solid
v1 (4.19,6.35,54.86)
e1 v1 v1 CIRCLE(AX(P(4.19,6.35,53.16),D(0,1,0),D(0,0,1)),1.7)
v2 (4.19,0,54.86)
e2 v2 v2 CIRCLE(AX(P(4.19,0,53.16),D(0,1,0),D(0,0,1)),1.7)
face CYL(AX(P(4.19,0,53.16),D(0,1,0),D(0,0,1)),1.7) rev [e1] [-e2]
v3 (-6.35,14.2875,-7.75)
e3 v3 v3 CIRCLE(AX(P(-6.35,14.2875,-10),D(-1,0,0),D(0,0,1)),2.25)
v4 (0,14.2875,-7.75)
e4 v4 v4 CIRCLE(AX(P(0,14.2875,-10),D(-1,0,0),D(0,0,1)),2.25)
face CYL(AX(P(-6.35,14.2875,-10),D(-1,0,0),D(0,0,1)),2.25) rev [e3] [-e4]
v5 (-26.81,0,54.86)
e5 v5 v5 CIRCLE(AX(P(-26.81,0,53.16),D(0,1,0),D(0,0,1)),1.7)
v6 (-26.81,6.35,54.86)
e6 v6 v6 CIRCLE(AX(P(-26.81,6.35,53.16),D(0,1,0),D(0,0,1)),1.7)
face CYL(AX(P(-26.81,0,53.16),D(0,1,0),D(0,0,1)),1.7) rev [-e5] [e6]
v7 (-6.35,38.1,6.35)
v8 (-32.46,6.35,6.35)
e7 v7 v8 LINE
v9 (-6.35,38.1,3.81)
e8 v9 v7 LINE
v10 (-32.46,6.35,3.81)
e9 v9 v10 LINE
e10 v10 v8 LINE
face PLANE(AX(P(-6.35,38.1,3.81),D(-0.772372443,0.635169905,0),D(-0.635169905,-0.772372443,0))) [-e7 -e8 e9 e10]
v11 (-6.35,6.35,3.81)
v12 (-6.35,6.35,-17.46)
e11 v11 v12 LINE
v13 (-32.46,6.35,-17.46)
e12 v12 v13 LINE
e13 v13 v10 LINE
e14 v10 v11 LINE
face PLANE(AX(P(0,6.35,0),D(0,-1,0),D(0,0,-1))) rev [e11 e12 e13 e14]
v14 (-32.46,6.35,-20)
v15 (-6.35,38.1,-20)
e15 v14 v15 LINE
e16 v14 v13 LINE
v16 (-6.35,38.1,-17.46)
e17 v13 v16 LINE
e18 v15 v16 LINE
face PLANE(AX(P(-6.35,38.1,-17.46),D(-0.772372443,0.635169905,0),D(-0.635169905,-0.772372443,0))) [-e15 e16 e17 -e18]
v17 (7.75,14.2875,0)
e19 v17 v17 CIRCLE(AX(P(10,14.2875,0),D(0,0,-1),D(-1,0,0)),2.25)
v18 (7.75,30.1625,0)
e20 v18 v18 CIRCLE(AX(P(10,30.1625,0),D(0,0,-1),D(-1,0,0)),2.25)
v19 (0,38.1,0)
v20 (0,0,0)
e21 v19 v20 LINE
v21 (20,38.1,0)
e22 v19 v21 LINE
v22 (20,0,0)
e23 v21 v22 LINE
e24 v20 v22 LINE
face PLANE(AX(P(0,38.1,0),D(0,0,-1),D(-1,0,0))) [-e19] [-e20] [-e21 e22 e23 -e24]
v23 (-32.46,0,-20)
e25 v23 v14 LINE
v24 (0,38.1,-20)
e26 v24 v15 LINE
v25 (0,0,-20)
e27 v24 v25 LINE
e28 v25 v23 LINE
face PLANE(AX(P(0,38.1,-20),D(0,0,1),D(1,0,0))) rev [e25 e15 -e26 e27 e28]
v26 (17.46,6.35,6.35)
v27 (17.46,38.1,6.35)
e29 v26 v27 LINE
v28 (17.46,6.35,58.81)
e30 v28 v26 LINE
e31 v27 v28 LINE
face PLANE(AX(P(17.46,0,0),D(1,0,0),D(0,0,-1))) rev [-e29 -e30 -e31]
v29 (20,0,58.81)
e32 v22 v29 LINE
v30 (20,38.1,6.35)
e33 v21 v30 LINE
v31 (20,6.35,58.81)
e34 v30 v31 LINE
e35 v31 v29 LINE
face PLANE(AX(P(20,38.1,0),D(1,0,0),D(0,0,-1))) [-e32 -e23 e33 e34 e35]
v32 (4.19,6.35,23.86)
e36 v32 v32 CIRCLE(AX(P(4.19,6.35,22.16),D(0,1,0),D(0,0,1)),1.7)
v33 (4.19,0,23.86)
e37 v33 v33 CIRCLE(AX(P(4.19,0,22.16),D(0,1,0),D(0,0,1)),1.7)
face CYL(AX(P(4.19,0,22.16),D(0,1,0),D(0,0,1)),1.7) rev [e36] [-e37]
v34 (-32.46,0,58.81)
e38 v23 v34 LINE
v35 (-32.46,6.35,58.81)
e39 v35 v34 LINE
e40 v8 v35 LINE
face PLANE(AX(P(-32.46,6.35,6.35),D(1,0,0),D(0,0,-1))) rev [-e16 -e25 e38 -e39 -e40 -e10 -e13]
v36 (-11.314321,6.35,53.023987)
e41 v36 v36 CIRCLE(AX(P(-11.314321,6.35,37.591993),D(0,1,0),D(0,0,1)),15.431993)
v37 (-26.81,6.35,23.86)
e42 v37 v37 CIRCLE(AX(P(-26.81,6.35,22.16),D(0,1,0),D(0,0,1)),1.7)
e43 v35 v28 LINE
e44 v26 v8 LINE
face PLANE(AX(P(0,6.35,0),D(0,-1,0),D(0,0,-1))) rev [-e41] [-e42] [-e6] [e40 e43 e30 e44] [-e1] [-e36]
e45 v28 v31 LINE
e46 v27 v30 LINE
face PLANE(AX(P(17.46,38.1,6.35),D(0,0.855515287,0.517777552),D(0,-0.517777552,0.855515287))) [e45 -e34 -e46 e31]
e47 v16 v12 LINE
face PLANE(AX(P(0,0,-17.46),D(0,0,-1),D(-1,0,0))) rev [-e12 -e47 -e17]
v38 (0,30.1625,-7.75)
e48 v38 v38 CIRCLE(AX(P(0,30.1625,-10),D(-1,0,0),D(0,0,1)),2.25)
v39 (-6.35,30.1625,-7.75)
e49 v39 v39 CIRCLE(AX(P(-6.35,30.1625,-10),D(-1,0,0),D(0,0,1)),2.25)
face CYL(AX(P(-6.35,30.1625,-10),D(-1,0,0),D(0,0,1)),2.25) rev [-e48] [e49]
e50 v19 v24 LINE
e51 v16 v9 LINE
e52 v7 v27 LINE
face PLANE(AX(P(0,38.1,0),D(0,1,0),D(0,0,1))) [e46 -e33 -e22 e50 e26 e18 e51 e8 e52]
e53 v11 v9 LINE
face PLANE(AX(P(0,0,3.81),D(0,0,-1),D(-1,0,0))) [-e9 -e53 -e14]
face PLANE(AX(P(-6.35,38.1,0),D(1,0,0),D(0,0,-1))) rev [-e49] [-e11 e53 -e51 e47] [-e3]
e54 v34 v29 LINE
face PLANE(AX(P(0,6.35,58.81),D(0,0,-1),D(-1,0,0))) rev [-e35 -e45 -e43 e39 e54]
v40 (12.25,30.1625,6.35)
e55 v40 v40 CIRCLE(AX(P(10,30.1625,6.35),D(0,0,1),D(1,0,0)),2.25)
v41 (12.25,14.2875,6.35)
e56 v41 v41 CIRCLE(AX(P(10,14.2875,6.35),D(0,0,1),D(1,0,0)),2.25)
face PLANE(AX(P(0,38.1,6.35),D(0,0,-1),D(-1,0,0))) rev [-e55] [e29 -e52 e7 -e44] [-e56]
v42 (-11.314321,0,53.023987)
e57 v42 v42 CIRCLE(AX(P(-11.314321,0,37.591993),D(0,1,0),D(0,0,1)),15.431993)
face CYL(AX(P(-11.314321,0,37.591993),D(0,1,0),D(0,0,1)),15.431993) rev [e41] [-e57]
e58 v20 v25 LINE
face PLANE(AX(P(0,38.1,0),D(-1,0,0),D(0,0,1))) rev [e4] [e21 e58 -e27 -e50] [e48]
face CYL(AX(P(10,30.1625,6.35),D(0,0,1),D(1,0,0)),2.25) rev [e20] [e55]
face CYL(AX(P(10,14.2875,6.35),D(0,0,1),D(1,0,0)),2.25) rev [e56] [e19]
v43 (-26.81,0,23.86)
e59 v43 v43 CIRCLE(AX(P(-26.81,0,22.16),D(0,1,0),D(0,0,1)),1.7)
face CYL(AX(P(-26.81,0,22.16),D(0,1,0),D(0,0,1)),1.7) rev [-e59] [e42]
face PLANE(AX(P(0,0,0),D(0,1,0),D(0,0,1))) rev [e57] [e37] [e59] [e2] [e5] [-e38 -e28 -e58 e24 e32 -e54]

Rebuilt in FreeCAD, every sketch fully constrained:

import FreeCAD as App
import Part
import Sketcher

V = App.Vector
Q = App.Units.Quantity


def add_polygon(sketch, points):
    """Adds a closed chain of lines whose ends are joined by coincident constraints."""
    first, n = sketch.GeometryCount, len(points)
    for a, b in zip(points, points[1:] + points[:1]):
        sketch.addGeometry(Part.LineSegment(App.Vector(*a, 0), App.Vector(*b, 0)), False)
    for i in range(n):
        sketch.addConstraint(Sketcher.Constraint("Coincident", first + i, 2, first + (i + 1) % n, 1))

doc = App.newDocument("Part")
body = doc.addObject("PartDesign::Body", "Body")

# Sketch on XZ plane
sketch1 = body.newObject("Sketcher::SketchObject", "Sketch")
sketch1.AttachmentSupport = (doc.getObject("XZ_Plane"), [""])
sketch1.MapMode = "FlatFace"
add_polygon(sketch1, [(20, 6), (20, 0), (0, 0), (0, -20), (-6, -20), (-6, 6)])  # lines 0-5
sketch1.addConstraint(Sketcher.Constraint("Vertical", 0))
sketch1.addConstraint(Sketcher.Constraint("Horizontal", 1))
sketch1.addConstraint(Sketcher.Constraint("Vertical", 2))
sketch1.addConstraint(Sketcher.Constraint("Horizontal", 3))
sketch1.addConstraint(Sketcher.Constraint("Vertical", 4))
sketch1.addConstraint(Sketcher.Constraint("Horizontal", 5))
sketch1.addConstraint(Sketcher.Constraint("Coincident", 1, 2, -1, 1))
sketch1.addConstraint(Sketcher.Constraint("Equal", 3, 0))
sketch1.addConstraint(Sketcher.Constraint("Equal", 1, 2))
sketch1.addConstraint(Sketcher.Constraint("DistanceX", 3, 2, 3, 1, Q("0.25 in")))
sketch1.addConstraint(Sketcher.Constraint("DistanceX", 1, 2, 1, 1, 20.0))
pad1 = body.newObject("PartDesign::Pad", "Pad")
pad1.Profile = sketch1
pad1.Length = Q("1.5 in")
pad1.Reversed = True

# Sketch on XZ plane
sketch2 = body.newObject("Sketcher::SketchObject", "Sketch001")
sketch2.AttachmentSupport = (doc.getObject("XZ_Plane"), [""])
sketch2.MapMode = "FlatFace"
add_polygon(sketch2, [(20, 6), (20, 59), (-32, 59), (-32, 6), (-22, 6), (-22, -20), (-6, -20), (-6, 6)])  # lines 0-7
sketch2.addConstraint(Sketcher.Constraint("Vertical", 0))
sketch2.addConstraint(Sketcher.Constraint("Horizontal", 1))
sketch2.addConstraint(Sketcher.Constraint("Vertical", 2))
sketch2.addConstraint(Sketcher.Constraint("Horizontal", 3))
sketch2.addConstraint(Sketcher.Constraint("Vertical", 4))
sketch2.addConstraint(Sketcher.Constraint("Horizontal", 5))
sketch2.addConstraint(Sketcher.Constraint("Vertical", 6))
sketch2.addConstraint(Sketcher.Constraint("Horizontal", 7))
sketch2.addConstraint(Sketcher.Constraint("Horizontal", 3, 2, 6, 2))
sketch2.addConstraint(Sketcher.Constraint("Equal", 1, 0))
sketch2.addConstraint(Sketcher.Constraint("Equal", 7, 4))
sketch2.addConstraint(Sketcher.Constraint("DistanceX", 3, 1, 3, 2, Q("0.4 in")))
sketch2.addConstraint(Sketcher.Constraint("DistanceY", -1, 1, 2, 2, Q("0.25 in")))
sketch2.addConstraint(Sketcher.Constraint("DistanceX", 5, 2, -1, 1, Q("0.25 in")))
sketch2.addConstraint(Sketcher.Constraint("DistanceX", 1, 2, 1, 1, 52.46))
sketch2.addConstraint(Sketcher.Constraint("DistanceX", 5, 1, 5, 2, 15.95))
pad2 = body.newObject("PartDesign::Pad", "Pad001")
pad2.Profile = sketch2
pad2.Length = Q("0.25 in")
pad2.Reversed = True

# Sketch on XZ plane
sketch3 = body.newObject("Sketcher::SketchObject", "Sketch002")
sketch3.AttachmentSupport = (doc.getObject("XZ_Plane"), [""])
sketch3.MapMode = "FlatFace"
sketch3.AttachmentOffset = App.Placement(V(0, 0, -0.25 * 25.4), App.Rotation())
sketch3.addGeometry(Part.Circle(V(4.2, 22.2, 0), V(0, 0, 1), 1.7), False)
sketch3.addGeometry(Part.Circle(V(-26.8, 53.2, 0), V(0, 0, 1), 1.7), False)
sketch3.addGeometry(Part.Circle(V(-26.8, 22.2, 0), V(0, 0, 1), 1.7), False)
sketch3.addGeometry(Part.Circle(V(-11.3, 37.6, 0), V(0, 0, 1), 15.4), False)
sketch3.addGeometry(Part.Circle(V(4.2, 53.2, 0), V(0, 0, 1), 1.7), False)
sketch3.addConstraint(Sketcher.Constraint("Equal", 0, 1))
sketch3.addConstraint(Sketcher.Constraint("Equal", 1, 2))
sketch3.addConstraint(Sketcher.Constraint("Equal", 2, 4))
sketch3.addConstraint(Sketcher.Constraint("Horizontal", 0, 3, 2, 3))
sketch3.addConstraint(Sketcher.Constraint("Horizontal", 1, 3, 4, 3))
sketch3.addConstraint(Sketcher.Constraint("Vertical", 1, 3, 2, 3))
sketch3.addConstraint(Sketcher.Constraint("Vertical", 0, 3, 4, 3))
sketch3.addConstraint(Sketcher.Constraint("Diameter", 0, 3.4))
sketch3.addConstraint(Sketcher.Constraint("Diameter", 3, 30.863987))
sketch3.addConstraint(Sketcher.Constraint("DistanceX", -1, 1, 0, 3, 4.19))
sketch3.addConstraint(Sketcher.Constraint("DistanceY", -1, 1, 0, 3, 22.16))
sketch3.addConstraint(Sketcher.Constraint("DistanceX", 1, 3, -1, 1, 26.81))
sketch3.addConstraint(Sketcher.Constraint("DistanceY", -1, 1, 1, 3, 53.16))
sketch3.addConstraint(Sketcher.Constraint("DistanceX", 3, 3, -1, 1, 11.314321))
sketch3.addConstraint(Sketcher.Constraint("DistanceY", -1, 1, 3, 3, 37.591993))
pocket1 = body.newObject("PartDesign::Pocket", "Pocket")
pocket1.Profile = sketch3
pocket1.Length = Q("0.25 in")
pocket1.Reversed = True

# Sketch on YZ plane
sketch4 = body.newObject("Sketcher::SketchObject", "Sketch003")
sketch4.AttachmentSupport = (doc.getObject("YZ_Plane"), [""])
sketch4.MapMode = "FlatFace"
sketch4.AttachmentOffset = App.Placement(V(0, 0, 20), App.Rotation())
add_polygon(sketch4, [(38, 6), (6, 59), (6, 6)])  # lines 0-2
sketch4.addConstraint(Sketcher.Constraint("Vertical", 1))
sketch4.addConstraint(Sketcher.Constraint("Horizontal", 2))
sketch4.addConstraint(Sketcher.Constraint("DistanceX", 2, 1, 2, 2, Q("1.25 in")))
sketch4.addConstraint(Sketcher.Constraint("DistanceX", -1, 1, 2, 2, Q("1.5 in")))
sketch4.addConstraint(Sketcher.Constraint("DistanceY", -1, 1, 1, 2, Q("0.25 in")))
sketch4.addConstraint(Sketcher.Constraint("DistanceY", 1, 2, 1, 1, 52.46))
pad3 = body.newObject("PartDesign::Pad", "Pad002")
pad3.Profile = sketch4
pad3.Length = Q("0.1 in")
pad3.Reversed = True

# Sketch on XZ plane
sketch5 = body.newObject("Sketcher::SketchObject", "Sketch004")
sketch5.AttachmentSupport = (doc.getObject("XZ_Plane"), [""])
sketch5.MapMode = "FlatFace"
sketch5.AttachmentOffset = App.Placement(V(0, 0, -0.25 * 25.4), App.Rotation())
add_polygon(sketch5, [(-32, -20), (-32, 6), (-22, 6), (-22, -20)])  # lines 0-3
sketch5.addConstraint(Sketcher.Constraint("Vertical", 0))
sketch5.addConstraint(Sketcher.Constraint("Horizontal", 1))
sketch5.addConstraint(Sketcher.Constraint("Vertical", 2))
sketch5.addConstraint(Sketcher.Constraint("Horizontal", 3))
sketch5.addConstraint(Sketcher.Constraint("DistanceX", 1, 1, 1, 2, Q("0.4 in")))
sketch5.addConstraint(Sketcher.Constraint("DistanceY", -1, 1, 0, 2, Q("0.25 in")))
sketch5.addConstraint(Sketcher.Constraint("DistanceY", 0, 1, 0, 2, 26.35))
sketch5.addConstraint(Sketcher.Constraint("DistanceX", 0, 2, -1, 1, 32.46))
pad4 = body.newObject("PartDesign::Pad", "Pad003")
pad4.Profile = sketch5
pad4.Length = Q("0.25 in")

# Sketch on XY plane
sketch6 = body.newObject("Sketcher::SketchObject", "Sketch005")
sketch6.AttachmentSupport = (doc.getObject("XY_Plane"), [""])
sketch6.MapMode = "FlatFace"
sketch6.AttachmentOffset = App.Placement(V(0, 0, -20), App.Rotation())
add_polygon(sketch6, [(-32, 6), (-6, 38), (-6, 6)])  # lines 0-2
sketch6.addConstraint(Sketcher.Constraint("Vertical", 1))
sketch6.addConstraint(Sketcher.Constraint("Horizontal", 2))
sketch6.addConstraint(Sketcher.Constraint("DistanceY", 1, 2, 1, 1, Q("1.25 in")))
sketch6.addConstraint(Sketcher.Constraint("DistanceY", -1, 1, 0, 2, Q("1.5 in")))
sketch6.addConstraint(Sketcher.Constraint("DistanceX", 0, 2, -1, 1, Q("0.25 in")))
sketch6.addConstraint(Sketcher.Constraint("DistanceX", 2, 2, 2, 1, 26.11))
pad5 = body.newObject("PartDesign::Pad", "Pad004")
pad5.Profile = sketch6
pad5.Length = Q("0.1 in")

# Sketch on XY plane
sketch7 = body.newObject("Sketcher::SketchObject", "Sketch006")
sketch7.AttachmentSupport = (doc.getObject("XY_Plane"), [""])
sketch7.MapMode = "FlatFace"
sketch7.AttachmentOffset = App.Placement(V(0, 0, 0.25 * 25.4), App.Rotation())
add_polygon(sketch7, [(-6, 38), (-32, 6), (-6, 6)])  # lines 0-2
sketch7.addConstraint(Sketcher.Constraint("Horizontal", 1))
sketch7.addConstraint(Sketcher.Constraint("Vertical", 2))
sketch7.addConstraint(Sketcher.Constraint("DistanceY", 2, 1, 2, 2, Q("1.25 in")))
sketch7.addConstraint(Sketcher.Constraint("DistanceY", -1, 1, 2, 2, Q("1.5 in")))
sketch7.addConstraint(Sketcher.Constraint("DistanceX", 1, 2, -1, 1, Q("0.25 in")))
sketch7.addConstraint(Sketcher.Constraint("DistanceX", 1, 1, 1, 2, 26.11))
pad6 = body.newObject("PartDesign::Pad", "Pad005")
pad6.Profile = sketch7
pad6.Length = Q("0.1 in")
pad6.Reversed = True

# Sketch on YZ plane
sketch8 = body.newObject("Sketcher::SketchObject", "Sketch007")
sketch8.AttachmentSupport = (doc.getObject("YZ_Plane"), [""])
sketch8.MapMode = "FlatFace"
sketch8.AttachmentOffset = App.Placement(V(0, 0, -0.25 * 25.4), App.Rotation())
sketch8.addGeometry(Part.Circle(V(30.2, -10, 0), V(0, 0, 1), 2.2), False)
sketch8.addGeometry(Part.Circle(V(14.3, -10, 0), V(0, 0, 1), 2.2), False)
sketch8.addConstraint(Sketcher.Constraint("Equal", 0, 1))
sketch8.addConstraint(Sketcher.Constraint("Horizontal", 0, 3, 1, 3))
sketch8.addConstraint(Sketcher.Constraint("Diameter", 0, 4.5))
sketch8.addConstraint(Sketcher.Constraint("DistanceX", -1, 1, 0, 3, Q("1.1875 in")))
sketch8.addConstraint(Sketcher.Constraint("DistanceX", -1, 1, 1, 3, Q("0.5625 in")))
sketch8.addConstraint(Sketcher.Constraint("DistanceY", 0, 3, -1, 1, 10.0))
doc.recompute()
hole = body.newObject("PartDesign::Hole", "Hole")
hole.Profile = sketch8
hole.ThreadType = "None"
hole.Diameter = 4.5
hole.DepthType = "ThroughAll"
hole.Reversed = True

# Sketch on XY plane
sketch9 = body.newObject("Sketcher::SketchObject", "Sketch008")
sketch9.AttachmentSupport = (doc.getObject("XY_Plane"), [""])
sketch9.MapMode = "FlatFace"
sketch9.AttachmentOffset = App.Placement(V(0, 0, 0.25 * 25.4), App.Rotation())
sketch9.addGeometry(Part.Circle(V(10, 30.2, 0), V(0, 0, 1), 2.2), False)
sketch9.addGeometry(Part.Circle(V(10, 14.3, 0), V(0, 0, 1), 2.2), False)
sketch9.addConstraint(Sketcher.Constraint("Equal", 0, 1))
sketch9.addConstraint(Sketcher.Constraint("Vertical", 0, 3, 1, 3))
sketch9.addConstraint(Sketcher.Constraint("Diameter", 0, 4.5))
sketch9.addConstraint(Sketcher.Constraint("DistanceY", -1, 1, 0, 3, Q("1.1875 in")))
sketch9.addConstraint(Sketcher.Constraint("DistanceY", -1, 1, 1, 3, Q("0.5625 in")))
sketch9.addConstraint(Sketcher.Constraint("DistanceX", -1, 1, 0, 3, 10.0))
doc.recompute()
hole2 = body.newObject("PartDesign::Hole", "Hole001")
hole2.Profile = sketch9
hole2.ThreadType = "None"
hole2.Diameter = 4.5
hole2.DepthType = "ThroughAll"

doc.recompute()
